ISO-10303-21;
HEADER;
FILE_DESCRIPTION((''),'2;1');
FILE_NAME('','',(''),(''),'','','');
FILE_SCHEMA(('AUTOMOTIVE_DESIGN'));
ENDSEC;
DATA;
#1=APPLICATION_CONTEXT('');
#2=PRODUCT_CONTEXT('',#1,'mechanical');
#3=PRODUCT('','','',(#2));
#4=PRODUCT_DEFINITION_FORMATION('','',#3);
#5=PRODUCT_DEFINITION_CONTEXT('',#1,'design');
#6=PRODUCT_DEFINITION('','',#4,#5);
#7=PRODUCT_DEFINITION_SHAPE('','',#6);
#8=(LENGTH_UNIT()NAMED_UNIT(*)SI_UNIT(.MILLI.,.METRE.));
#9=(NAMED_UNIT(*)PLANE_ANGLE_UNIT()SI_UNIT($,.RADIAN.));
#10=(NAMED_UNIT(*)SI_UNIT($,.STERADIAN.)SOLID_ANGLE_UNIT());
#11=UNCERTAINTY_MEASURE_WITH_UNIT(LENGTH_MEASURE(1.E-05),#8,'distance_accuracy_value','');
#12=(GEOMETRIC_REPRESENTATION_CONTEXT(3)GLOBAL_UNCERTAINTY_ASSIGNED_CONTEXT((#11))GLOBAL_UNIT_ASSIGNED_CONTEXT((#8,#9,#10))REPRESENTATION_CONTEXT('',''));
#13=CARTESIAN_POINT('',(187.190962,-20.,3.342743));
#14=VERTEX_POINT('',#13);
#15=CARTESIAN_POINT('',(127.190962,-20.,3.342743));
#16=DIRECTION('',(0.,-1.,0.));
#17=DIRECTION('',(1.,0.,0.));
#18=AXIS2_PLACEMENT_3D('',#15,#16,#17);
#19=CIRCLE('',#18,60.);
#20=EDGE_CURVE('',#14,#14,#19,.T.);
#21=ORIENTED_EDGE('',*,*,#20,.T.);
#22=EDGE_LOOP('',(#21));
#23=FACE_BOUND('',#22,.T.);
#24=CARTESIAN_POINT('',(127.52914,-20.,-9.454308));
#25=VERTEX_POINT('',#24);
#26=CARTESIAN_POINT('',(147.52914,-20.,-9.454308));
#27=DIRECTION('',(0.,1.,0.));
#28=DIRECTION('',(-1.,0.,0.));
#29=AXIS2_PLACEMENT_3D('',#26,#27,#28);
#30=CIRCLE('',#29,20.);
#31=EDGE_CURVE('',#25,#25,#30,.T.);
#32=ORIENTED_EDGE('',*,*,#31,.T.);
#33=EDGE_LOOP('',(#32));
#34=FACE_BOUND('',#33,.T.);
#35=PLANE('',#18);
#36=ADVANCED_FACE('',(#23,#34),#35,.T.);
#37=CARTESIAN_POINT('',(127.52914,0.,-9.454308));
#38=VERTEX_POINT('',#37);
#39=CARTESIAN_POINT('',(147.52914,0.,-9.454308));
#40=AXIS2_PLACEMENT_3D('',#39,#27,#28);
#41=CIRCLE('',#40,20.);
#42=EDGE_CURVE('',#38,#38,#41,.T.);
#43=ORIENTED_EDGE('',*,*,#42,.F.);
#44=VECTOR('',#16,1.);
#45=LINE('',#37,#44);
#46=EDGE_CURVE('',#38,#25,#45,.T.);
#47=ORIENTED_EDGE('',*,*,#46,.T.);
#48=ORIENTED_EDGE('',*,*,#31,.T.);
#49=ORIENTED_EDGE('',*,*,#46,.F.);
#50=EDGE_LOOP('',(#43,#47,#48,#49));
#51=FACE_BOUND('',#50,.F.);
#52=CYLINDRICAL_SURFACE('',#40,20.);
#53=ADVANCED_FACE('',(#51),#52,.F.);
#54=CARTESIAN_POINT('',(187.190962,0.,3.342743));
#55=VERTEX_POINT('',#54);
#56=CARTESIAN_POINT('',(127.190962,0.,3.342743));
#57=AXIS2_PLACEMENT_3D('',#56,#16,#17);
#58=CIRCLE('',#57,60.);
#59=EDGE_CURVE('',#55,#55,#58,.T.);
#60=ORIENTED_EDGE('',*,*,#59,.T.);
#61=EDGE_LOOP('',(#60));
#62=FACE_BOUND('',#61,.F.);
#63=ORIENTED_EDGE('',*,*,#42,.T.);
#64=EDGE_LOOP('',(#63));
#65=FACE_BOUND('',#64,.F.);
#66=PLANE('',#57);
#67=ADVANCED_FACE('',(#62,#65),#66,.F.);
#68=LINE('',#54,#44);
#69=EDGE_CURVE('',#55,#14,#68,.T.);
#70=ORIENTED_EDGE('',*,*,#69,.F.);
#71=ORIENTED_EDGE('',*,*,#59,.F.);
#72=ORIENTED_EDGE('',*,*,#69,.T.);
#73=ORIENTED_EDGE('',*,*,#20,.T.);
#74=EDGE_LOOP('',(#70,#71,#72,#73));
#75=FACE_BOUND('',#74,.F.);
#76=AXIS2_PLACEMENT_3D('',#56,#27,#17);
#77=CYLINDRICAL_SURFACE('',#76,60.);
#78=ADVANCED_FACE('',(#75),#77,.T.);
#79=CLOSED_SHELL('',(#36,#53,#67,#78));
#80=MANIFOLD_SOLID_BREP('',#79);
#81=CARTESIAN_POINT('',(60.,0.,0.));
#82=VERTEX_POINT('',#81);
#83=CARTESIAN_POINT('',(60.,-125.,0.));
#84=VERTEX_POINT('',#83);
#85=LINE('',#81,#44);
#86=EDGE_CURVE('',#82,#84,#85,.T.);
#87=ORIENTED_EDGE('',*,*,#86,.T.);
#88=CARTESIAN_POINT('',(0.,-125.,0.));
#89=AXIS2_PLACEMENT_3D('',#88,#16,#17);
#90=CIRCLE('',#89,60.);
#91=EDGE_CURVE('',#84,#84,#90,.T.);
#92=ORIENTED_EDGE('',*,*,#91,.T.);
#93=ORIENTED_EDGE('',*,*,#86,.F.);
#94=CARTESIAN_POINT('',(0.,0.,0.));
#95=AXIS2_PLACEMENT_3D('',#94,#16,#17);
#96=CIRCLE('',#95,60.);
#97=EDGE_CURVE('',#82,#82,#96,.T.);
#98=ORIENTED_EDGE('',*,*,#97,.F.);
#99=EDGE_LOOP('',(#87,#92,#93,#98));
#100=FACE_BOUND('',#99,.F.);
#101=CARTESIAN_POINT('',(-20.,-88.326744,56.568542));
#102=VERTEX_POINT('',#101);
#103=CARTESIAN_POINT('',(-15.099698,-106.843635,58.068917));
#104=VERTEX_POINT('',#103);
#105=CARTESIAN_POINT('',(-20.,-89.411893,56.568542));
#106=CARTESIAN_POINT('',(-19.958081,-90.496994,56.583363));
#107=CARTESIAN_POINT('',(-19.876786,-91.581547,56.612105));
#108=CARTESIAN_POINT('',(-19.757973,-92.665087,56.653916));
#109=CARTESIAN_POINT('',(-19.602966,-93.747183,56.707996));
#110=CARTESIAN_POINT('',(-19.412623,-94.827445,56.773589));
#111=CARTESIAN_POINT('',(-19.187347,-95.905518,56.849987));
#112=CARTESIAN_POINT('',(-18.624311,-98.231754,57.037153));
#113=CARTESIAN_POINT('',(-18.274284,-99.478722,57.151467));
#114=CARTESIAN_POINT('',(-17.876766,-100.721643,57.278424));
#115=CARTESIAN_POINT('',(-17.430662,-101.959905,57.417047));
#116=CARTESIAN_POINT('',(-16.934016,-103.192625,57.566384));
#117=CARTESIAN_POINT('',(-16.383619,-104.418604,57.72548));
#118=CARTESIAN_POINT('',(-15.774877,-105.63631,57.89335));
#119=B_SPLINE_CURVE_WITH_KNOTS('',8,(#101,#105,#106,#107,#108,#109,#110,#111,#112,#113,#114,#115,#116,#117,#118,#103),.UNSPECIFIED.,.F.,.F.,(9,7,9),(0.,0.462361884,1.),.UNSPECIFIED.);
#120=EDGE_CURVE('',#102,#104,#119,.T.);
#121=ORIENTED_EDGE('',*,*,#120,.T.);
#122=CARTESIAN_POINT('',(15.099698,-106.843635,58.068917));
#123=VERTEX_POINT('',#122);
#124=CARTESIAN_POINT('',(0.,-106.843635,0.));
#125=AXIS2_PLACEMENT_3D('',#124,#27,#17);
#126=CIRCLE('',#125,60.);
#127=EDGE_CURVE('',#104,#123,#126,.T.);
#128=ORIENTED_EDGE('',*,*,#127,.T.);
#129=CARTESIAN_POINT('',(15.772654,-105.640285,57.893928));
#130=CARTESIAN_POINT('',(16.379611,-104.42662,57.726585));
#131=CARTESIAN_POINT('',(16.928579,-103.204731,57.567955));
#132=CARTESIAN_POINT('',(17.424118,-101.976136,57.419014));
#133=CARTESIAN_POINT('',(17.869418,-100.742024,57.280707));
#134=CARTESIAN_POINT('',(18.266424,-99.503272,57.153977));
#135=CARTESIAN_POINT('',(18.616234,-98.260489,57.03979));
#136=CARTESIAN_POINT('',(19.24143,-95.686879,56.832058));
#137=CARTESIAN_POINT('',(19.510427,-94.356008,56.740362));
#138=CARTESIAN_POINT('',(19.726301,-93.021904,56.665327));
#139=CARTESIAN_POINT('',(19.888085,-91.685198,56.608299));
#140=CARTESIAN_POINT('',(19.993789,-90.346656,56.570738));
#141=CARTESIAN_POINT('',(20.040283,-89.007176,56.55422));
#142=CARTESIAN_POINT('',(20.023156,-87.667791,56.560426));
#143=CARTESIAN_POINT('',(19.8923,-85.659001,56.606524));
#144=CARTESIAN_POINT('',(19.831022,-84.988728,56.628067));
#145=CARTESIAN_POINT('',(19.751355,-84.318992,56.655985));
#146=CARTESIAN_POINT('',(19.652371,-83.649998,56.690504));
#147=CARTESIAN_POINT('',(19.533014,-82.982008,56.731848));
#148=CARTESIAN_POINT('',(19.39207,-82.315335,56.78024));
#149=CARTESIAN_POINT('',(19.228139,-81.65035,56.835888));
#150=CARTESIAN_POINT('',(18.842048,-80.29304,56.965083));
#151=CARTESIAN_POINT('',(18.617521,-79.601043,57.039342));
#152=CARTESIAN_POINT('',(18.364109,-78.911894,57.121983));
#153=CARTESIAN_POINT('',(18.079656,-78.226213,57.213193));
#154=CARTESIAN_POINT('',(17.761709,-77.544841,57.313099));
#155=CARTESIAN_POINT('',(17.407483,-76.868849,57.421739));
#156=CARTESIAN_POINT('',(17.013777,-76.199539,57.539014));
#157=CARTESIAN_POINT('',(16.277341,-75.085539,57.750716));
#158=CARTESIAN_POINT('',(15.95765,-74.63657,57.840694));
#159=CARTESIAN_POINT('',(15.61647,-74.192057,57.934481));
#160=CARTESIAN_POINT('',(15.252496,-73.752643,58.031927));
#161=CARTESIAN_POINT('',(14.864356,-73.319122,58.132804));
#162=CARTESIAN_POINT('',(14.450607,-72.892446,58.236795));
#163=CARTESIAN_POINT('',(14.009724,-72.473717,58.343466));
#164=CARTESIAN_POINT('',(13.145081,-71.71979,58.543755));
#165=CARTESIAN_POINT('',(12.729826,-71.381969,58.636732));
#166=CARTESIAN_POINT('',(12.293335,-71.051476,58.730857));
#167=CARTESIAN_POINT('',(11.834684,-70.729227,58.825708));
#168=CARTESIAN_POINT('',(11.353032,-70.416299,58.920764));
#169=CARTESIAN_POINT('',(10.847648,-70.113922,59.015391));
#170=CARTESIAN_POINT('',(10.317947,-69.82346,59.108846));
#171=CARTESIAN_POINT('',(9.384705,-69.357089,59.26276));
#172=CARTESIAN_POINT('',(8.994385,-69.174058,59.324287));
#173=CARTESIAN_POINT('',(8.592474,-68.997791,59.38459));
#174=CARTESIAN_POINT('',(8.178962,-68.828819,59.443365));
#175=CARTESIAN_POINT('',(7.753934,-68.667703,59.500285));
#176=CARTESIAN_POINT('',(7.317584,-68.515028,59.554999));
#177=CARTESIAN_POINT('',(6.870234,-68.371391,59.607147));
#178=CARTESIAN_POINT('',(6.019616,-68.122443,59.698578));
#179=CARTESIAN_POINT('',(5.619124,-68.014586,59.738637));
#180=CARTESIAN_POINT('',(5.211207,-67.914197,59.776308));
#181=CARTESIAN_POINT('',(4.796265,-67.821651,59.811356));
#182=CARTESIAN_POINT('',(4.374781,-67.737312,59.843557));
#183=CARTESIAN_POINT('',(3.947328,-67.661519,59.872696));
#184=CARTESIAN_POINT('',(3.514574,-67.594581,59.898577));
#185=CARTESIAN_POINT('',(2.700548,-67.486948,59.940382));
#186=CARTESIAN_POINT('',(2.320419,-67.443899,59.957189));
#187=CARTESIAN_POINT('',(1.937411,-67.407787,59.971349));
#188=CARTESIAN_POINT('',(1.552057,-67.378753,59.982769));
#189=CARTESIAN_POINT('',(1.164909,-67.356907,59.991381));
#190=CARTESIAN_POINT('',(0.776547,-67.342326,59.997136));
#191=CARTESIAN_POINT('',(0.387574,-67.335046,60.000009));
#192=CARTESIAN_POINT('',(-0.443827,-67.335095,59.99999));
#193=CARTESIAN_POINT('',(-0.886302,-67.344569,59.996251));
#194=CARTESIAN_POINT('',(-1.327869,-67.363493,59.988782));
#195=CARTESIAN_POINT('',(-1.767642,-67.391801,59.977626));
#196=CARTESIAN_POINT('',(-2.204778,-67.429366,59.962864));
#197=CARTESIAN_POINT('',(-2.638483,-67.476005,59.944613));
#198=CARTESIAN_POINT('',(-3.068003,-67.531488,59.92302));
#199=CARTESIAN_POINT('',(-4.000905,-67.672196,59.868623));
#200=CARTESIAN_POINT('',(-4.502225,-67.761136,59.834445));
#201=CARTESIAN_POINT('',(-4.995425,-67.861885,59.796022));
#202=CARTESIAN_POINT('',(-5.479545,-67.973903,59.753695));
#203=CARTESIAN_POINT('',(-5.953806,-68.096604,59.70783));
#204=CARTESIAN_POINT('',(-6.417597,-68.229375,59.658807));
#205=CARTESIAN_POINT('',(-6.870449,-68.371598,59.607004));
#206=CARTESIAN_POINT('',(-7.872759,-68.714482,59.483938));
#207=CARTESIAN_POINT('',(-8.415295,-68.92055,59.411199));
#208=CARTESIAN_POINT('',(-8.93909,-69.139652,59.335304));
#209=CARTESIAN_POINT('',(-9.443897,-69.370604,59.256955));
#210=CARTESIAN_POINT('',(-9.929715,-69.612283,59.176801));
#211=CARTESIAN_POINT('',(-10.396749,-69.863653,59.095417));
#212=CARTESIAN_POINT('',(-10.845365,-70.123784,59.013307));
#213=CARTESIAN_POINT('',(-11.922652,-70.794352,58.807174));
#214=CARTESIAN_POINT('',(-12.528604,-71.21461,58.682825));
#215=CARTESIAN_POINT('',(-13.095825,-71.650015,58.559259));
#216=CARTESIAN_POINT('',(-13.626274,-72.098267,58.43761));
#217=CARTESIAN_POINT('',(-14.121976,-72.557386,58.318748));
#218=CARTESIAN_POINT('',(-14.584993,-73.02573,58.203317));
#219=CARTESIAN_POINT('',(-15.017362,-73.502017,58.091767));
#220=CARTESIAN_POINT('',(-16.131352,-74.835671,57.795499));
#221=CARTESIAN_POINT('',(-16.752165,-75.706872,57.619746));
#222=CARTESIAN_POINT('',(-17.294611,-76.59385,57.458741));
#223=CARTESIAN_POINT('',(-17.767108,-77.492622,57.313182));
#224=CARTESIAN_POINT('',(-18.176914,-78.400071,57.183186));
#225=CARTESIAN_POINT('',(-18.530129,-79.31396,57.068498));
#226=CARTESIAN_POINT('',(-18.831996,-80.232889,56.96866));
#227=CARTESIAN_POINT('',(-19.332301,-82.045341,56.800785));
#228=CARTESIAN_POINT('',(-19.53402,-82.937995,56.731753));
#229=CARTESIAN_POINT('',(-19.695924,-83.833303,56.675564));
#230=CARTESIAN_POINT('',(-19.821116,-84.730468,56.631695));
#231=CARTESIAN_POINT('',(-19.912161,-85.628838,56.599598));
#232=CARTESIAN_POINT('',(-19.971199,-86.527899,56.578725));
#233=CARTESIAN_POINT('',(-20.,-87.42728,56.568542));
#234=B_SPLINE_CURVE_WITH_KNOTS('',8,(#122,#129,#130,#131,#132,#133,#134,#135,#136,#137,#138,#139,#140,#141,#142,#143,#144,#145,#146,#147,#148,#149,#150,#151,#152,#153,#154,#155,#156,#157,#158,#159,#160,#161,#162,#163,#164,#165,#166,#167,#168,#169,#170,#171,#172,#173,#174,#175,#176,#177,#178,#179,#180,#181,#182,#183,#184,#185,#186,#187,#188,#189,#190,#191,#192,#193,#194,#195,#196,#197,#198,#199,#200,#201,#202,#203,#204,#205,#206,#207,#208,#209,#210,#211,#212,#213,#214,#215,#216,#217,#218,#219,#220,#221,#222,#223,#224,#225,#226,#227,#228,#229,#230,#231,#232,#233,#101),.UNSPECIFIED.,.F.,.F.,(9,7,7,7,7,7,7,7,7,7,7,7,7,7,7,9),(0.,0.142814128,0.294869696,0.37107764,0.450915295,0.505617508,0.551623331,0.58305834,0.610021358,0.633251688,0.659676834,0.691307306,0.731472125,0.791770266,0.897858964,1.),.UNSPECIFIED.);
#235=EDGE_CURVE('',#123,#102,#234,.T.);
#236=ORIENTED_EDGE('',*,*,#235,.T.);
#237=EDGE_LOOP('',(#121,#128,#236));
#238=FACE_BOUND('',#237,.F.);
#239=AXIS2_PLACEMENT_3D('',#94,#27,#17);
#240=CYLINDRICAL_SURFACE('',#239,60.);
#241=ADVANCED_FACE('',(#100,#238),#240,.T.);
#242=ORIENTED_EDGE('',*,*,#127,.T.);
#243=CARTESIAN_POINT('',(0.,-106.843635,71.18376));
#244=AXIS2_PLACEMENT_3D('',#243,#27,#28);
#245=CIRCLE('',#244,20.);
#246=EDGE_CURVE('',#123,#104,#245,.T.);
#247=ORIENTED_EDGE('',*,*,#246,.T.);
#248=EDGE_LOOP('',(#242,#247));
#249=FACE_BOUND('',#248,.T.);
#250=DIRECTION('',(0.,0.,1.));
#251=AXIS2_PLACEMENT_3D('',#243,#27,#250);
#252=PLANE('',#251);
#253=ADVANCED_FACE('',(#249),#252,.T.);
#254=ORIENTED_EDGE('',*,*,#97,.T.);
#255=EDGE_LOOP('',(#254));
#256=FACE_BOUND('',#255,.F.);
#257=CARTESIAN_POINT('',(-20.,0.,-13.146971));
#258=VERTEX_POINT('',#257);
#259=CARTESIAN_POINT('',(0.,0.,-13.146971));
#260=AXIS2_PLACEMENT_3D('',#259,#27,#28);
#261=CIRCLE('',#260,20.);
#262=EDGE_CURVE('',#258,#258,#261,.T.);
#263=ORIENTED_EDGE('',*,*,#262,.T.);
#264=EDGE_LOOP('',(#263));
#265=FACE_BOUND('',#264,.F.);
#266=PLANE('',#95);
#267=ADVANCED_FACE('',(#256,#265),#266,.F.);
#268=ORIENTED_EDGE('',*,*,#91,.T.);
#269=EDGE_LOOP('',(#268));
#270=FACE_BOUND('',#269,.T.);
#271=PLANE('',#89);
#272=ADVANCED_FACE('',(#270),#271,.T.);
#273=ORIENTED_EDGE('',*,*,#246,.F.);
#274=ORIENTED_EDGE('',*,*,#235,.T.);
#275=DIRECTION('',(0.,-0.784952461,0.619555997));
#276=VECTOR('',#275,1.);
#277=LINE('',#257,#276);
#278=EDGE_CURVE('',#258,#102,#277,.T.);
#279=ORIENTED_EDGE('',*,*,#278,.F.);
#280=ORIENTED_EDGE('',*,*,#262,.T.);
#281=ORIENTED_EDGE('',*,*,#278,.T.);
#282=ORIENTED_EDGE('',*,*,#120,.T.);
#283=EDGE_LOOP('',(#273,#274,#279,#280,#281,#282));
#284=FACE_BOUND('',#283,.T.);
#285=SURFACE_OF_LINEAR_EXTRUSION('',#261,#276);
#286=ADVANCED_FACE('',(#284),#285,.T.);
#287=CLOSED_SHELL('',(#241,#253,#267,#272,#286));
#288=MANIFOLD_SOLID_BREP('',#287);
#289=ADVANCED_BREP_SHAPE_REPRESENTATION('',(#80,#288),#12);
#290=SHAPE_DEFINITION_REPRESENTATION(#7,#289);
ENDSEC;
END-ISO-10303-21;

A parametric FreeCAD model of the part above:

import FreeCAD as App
import Part
import Sketcher
Q = App.Units.Quantity

doc = App.newDocument("Part")
params = doc.addObject("Spreadsheet::Sheet", "Params")
for row, (alias, value) in enumerate([
    ("sketch1_diameter", "120 mm"),
    ("pad1_length", "125 mm"),
    ("sketch2_diameter", "40 mm"),
    ("sketch4_diameter", "120 mm"),
    ("pad2_length", "20 mm"),
    ("sketch5_diameter", "40 mm"),
    ("pocket1_length", "30 mm"),
], start=1):
    params.set(f"A{row}", alias)
    params.set(f"B{row}", "=" + value)
    params.setAlias(f"B{row}", alias)

body = doc.addObject("PartDesign::Body", "Body")

sketch1 = doc.addObject("Sketcher::SketchObject", "Sketch")
body.addObject(sketch1)
sketch1.AttachmentSupport = (doc.XZ_Plane, [""])
sketch1.MapMode = "FlatFace"
sketch1.addGeometry(Part.Circle(App.Vector(0, 0, 0), App.Vector(0, 0, 1), 60), False)
sketch1.addConstraint([
    Sketcher.Constraint("Coincident", 0, 3, -1, 1),
    Sketcher.Constraint("Diameter", 0, Q("120 mm")),
])
sketch1.setExpression("Constraints[1]", "Params.sketch1_diameter")
pad1 = doc.addObject("PartDesign::Pad", "Pad")
body.addObject(pad1)
pad1.Profile = sketch1
pad1.setExpression("Length", "Params.pad1_length")

sketch2 = doc.addObject("Sketcher::SketchObject", "Sketch001")
body.addObject(sketch2)
sketch2.AttachmentSupport = (doc.XZ_Plane, [""])
sketch2.MapMode = "FlatFace"
sketch2.addGeometry(Part.Circle(App.Vector(0, -13.146971, 0), App.Vector(0, 0, 1), 20), False)
sketch2.addConstraint([
    Sketcher.Constraint("PointOnObject", 0, 3, -2),
    Sketcher.Constraint("Diameter", 0, Q("40 mm")),
    Sketcher.Constraint("DistanceY", 0, 3, -1, 1, Q("13.146971 mm")),
])
sketch2.setExpression("Constraints[1]", "Params.sketch2_diameter")

sketch3 = doc.addObject("Sketcher::SketchObject", "Sketch002")
body.addObject(sketch3)
sketch3.Placement = App.Placement(App.Vector(0, -12.369845, -15.672095), App.Rotation(App.Vector(0, -0.784952461, 0.619555997), App.Vector(0.999999999, 0, 0), App.Vector(0, 0.619555997, 0.784952461), "ZXY"))
sketch3.addGeometry(Part.LineSegment(App.Vector(-15.758719, 0, 0), App.Vector(120.356065, 0, 0)), False)
sketch3.addConstraint([
    Sketcher.Constraint("Horizontal", 0),
    Sketcher.Constraint("PointOnObject", 0, 1, -1),
    Sketcher.Constraint("DistanceX", 0, 1, 0, 2, Q("136.114784 mm")),
    Sketcher.Constraint("DistanceX", 0, 1, -1, 1, Q("15.758719 mm")),
])
doc.recompute()

subtractivepipe = doc.addObject("PartDesign::SubtractivePipe", "SubtractivePipe")
body.addObject(subtractivepipe)
subtractivepipe.Profile = sketch2
subtractivepipe.Spine = (sketch3, ["Edge1"])
body2 = doc.addObject("PartDesign::Body", "Body001")

sketch4 = doc.addObject("Sketcher::SketchObject", "Sketch003")
body2.addObject(sketch4)
sketch4.AttachmentSupport = (doc.getObject("XZ_Plane001"), [""])
sketch4.MapMode = "FlatFace"
sketch4.addGeometry(Part.Circle(App.Vector(127.190962, 3.342743, 0), App.Vector(0, 0, 1), 60), False)
sketch4.addConstraint([
    Sketcher.Constraint("Diameter", 0, Q("120 mm")),
    Sketcher.Constraint("DistanceX", -1, 1, 0, 3, Q("127.190962 mm")),
    Sketcher.Constraint("DistanceY", -1, 1, 0, 3, Q("3.342743 mm")),
])
sketch4.setExpression("Constraints[0]", "Params.sketch4_diameter")
pad2 = doc.addObject("PartDesign::Pad", "Pad001")
body2.addObject(pad2)
pad2.Profile = sketch4
pad2.setExpression("Length", "Params.pad2_length")

sketch5 = doc.addObject("Sketcher::SketchObject", "Sketch004")
body2.addObject(sketch5)
sketch5.AttachmentSupport = (doc.getObject("XZ_Plane001"), [""])
sketch5.MapMode = "FlatFace"
sketch5.addGeometry(Part.Circle(App.Vector(147.52914, -9.454308, 0), App.Vector(0, 0, 1), 20), False)
sketch5.addConstraint([
    Sketcher.Constraint("Diameter", 0, Q("40 mm")),
    Sketcher.Constraint("DistanceX", -1, 1, 0, 3, Q("147.52914 mm")),
    Sketcher.Constraint("DistanceY", 0, 3, -1, 1, Q("9.454308 mm")),
])
sketch5.setExpression("Constraints[0]", "Params.sketch5_diameter")
pocket1 = doc.addObject("PartDesign::Pocket", "Pocket")
body2.addObject(pocket1)
pocket1.Profile = sketch5
pocket1.setExpression("Length", "Params.pocket1_length")
pocket1.Reversed = True

doc.recompute()
